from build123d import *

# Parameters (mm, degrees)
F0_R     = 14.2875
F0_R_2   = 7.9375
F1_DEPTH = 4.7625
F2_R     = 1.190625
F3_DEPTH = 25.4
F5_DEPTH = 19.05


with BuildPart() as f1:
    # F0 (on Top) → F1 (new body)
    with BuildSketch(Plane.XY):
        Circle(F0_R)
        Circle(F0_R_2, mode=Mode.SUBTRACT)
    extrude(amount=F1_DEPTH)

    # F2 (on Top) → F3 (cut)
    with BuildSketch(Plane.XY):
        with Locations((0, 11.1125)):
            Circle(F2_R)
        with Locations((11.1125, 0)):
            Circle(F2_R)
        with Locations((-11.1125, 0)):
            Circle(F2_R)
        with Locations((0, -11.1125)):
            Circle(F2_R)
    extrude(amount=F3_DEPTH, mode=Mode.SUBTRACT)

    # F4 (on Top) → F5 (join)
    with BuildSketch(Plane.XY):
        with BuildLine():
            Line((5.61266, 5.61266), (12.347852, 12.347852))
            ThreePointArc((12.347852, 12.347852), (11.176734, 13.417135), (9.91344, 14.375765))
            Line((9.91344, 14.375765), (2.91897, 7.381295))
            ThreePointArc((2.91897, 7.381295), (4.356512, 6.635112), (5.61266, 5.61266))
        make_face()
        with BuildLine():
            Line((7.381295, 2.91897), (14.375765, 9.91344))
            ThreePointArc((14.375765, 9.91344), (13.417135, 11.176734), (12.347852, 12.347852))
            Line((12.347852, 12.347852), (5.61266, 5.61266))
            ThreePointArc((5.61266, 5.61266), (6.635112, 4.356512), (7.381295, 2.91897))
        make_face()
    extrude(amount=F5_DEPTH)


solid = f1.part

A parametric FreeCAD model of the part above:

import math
import FreeCAD as App
import Part
import Sketcher

V = App.Vector
Q = App.Units.Quantity

doc = App.newDocument("Part")
body = doc.addObject("PartDesign::Body", "Body")

sketch1 = body.newObject("Sketcher::SketchObject", "Sketch")
sketch1.AttachmentSupport = (doc.getObject("XY_Plane"), [""])
sketch1.MapMode = "FlatFace"
sketch1.addGeometry([
    Part.Circle(V(0, 0, 0), V(0, 0, 1), 14),
    Part.Circle(V(0, 0, 0), V(0, 0, 1), 8),
], False)
sketch1.addConstraint([
    Sketcher.Constraint("Coincident", 0, 3, -1, 1),
    Sketcher.Constraint("Coincident", 1, 3, -1, 1),
    Sketcher.Constraint("Diameter", 0, Q("1.125 in")),
    Sketcher.Constraint("Diameter", 1, Q("0.625 in")),
])
pad1 = body.newObject("PartDesign::Pad", "Pad")
pad1.Profile = sketch1
pad1.Length = Q("0.1875 in")

sketch2 = body.newObject("Sketcher::SketchObject", "Sketch001")
sketch2.AttachmentSupport = (doc.getObject("XY_Plane"), [""])
sketch2.MapMode = "FlatFace"
sketch2.addGeometry([
    Part.Circle(V(0, 11.1, 0), V(0, 0, 1), 1.2),
    Part.Circle(V(11.1, 0, 0), V(0, 0, 1), 1.2),
    Part.Circle(V(-11.1, 0, 0), V(0, 0, 1), 1.2),
    Part.Circle(V(0, -11.1, 0), V(0, 0, 1), 1.2),
], False)
sketch2.addConstraint([
    Sketcher.Constraint("Equal", 0, 1),
    Sketcher.Constraint("Equal", 1, 2),
    Sketcher.Constraint("Equal", 2, 3),
    Sketcher.Constraint("Symmetric", 1, 3, 2, 3, -1, 1),
    Sketcher.Constraint("Symmetric", 0, 3, 3, 3, -1, 1),
    Sketcher.Constraint("PointOnObject", 0, 3, -2),
    Sketcher.Constraint("PointOnObject", 1, 3, -1),
    Sketcher.Constraint("Diameter", 0, Q("0.09375 in")),
    Sketcher.Constraint("DistanceY", -1, 1, 0, 3, Q("0.4375 in")),
    Sketcher.Constraint("DistanceX", -1, 1, 1, 3, Q("0.4375 in")),
])
pocket1 = body.newObject("PartDesign::Pocket", "Pocket")
pocket1.Profile = sketch2
pocket1.Length = Q("1 in")
pocket1.Reversed = True

sketch3 = body.newObject("Sketcher::SketchObject", "Sketch002")
sketch3.AttachmentSupport = (doc.getObject("XY_Plane"), [""])
sketch3.MapMode = "FlatFace"
sketch3.addGeometry([
    Part.ArcOfCircle(Part.Circle(V(0, 0, 0), V(0, 0, 1), 17.5), math.radians(45), math.radians(55.41)),
    Part.LineSegment(V(9.9, 14.4, 0), V(2.9, 7.4, 0)),
    Part.ArcOfCircle(Part.Circle(V(0, 0, 0), V(0, 0, 1), 7.9), math.radians(45), math.radians(68)),
    Part.ArcOfCircle(Part.Circle(V(0, 0, 0), V(0, 0, 1), 7.9), math.radians(22), math.radians(45)),
    Part.LineSegment(V(7.4, 2.9, 0), V(14.4, 9.9, 0)),
    Part.ArcOfCircle(Part.Circle(V(0, 0, 0), V(0, 0, 1), 17.5), math.radians(34.59), math.radians(45)),
], False)
sketch3.addConstraint([
    Sketcher.Constraint("Coincident", 0, 2, 1, 1),
    Sketcher.Constraint("Coincident", 1, 2, 2, 2),
    Sketcher.Constraint("Tangent", 2, 1, 3, 2),
    Sketcher.Constraint("Coincident", 3, 1, 4, 1),
    Sketcher.Constraint("Coincident", 4, 2, 5, 1),
    Sketcher.Constraint("Tangent", 5, 2, 0, 1),
    Sketcher.Constraint("Equal", 2, 3),
    Sketcher.Constraint("Equal", 0, 5),
    Sketcher.Constraint("Parallel", 1, 4),
    Sketcher.Constraint("Equal", 1, 4),
    Sketcher.Constraint("Angle", 1, Q("-135 deg")),
    Sketcher.Constraint("Radius", 0, Q("17.462572 mm")),
    Sketcher.Constraint("Radius", 2, Q("7.937485 mm")),
    Sketcher.Constraint("DistanceX", -1, 1, 0, 2, Q("9.91344 mm")),
    Sketcher.Constraint("DistanceX", -1, 1, 1, 2, Q("2.91897 mm")),
    Sketcher.Constraint("DistanceX", -1, 1, 2, 1, Q("5.61266 mm")),
    Sketcher.Constraint("DistanceY", -1, 1, 2, 1, Q("5.61266 mm")),
    Sketcher.Constraint("DistanceY", -1, 1, 3, 1, Q("2.91897 mm")),
    Sketcher.Constraint("DistanceX", -1, 1, 5, 2, Q("12.347852 mm")),
    Sketcher.Constraint("DistanceX", 2, 3, 0, 2, Q("9.913431 mm")),
])
pad2 = body.newObject("PartDesign::Pad", "Pad001")
pad2.Profile = sketch3
pad2.Length = Q("0.75 in")

doc.recompute()
